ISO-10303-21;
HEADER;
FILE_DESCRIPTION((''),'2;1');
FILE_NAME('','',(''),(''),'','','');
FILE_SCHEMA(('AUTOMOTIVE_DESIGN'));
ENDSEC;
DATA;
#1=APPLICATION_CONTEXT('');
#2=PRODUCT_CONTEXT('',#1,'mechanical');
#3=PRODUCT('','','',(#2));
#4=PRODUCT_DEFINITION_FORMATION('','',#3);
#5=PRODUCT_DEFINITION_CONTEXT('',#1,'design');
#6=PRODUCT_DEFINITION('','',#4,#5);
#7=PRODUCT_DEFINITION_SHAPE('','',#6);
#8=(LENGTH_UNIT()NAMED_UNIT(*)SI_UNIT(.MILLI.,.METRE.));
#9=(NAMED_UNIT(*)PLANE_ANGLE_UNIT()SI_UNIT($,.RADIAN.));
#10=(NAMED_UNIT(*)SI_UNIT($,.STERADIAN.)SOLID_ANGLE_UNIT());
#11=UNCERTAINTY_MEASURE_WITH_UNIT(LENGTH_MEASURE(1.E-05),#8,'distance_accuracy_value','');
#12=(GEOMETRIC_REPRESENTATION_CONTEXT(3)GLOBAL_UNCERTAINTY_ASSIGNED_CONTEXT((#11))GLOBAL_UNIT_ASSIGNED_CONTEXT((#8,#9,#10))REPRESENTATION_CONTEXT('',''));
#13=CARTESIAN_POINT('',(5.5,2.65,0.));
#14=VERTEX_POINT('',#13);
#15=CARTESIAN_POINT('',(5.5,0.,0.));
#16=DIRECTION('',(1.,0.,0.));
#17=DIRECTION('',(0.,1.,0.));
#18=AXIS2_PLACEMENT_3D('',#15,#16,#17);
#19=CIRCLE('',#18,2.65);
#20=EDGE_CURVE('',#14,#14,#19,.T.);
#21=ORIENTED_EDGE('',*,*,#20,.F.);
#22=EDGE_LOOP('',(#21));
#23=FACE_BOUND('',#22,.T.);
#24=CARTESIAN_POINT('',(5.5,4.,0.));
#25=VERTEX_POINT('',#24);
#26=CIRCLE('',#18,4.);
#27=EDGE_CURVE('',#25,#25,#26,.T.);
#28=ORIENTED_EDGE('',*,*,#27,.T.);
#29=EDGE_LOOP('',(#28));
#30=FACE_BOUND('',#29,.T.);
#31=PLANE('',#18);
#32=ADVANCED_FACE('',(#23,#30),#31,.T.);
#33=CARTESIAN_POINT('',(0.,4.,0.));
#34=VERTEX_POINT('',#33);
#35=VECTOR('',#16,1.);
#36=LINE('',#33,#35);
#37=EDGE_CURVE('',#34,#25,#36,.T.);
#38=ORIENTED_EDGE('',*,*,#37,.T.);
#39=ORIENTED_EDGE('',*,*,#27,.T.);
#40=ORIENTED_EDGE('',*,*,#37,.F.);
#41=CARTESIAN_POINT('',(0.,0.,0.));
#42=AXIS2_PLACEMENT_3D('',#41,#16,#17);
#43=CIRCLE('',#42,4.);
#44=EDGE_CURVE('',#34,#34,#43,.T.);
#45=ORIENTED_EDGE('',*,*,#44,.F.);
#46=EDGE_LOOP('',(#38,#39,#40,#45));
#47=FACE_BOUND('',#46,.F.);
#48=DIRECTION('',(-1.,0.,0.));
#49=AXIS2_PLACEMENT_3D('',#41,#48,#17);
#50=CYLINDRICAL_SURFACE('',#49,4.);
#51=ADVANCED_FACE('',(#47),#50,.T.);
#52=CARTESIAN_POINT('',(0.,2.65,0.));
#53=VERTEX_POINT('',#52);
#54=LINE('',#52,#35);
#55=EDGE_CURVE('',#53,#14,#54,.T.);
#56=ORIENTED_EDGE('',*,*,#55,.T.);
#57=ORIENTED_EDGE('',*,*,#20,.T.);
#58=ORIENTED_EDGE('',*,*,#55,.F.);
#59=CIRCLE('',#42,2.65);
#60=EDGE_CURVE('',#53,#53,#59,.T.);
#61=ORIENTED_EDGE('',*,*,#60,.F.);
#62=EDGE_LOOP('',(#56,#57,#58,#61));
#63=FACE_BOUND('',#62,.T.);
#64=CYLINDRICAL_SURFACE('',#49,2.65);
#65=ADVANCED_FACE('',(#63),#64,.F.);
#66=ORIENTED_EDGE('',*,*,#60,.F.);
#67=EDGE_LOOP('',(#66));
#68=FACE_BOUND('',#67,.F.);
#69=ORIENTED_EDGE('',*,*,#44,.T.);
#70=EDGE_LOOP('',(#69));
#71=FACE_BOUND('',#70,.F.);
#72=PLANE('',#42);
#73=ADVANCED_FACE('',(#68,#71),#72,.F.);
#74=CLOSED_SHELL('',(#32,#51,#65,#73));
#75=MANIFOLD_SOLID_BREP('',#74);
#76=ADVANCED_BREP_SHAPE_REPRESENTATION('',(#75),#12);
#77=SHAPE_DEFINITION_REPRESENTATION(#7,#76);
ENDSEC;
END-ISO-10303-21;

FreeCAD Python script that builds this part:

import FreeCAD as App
import Part
import Sketcher

V = App.Vector

doc = App.newDocument("Part")
body = doc.addObject("PartDesign::Body", "Body")

# Sketch on YZ plane
sketch1 = body.newObject("Sketcher::SketchObject", "Sketch")
sketch1.AttachmentSupport = (doc.getObject("YZ_Plane"), [""])
sketch1.MapMode = "FlatFace"
sketch1.addGeometry([
    Part.Circle(V(0, 0, 0), V(0, 0, 1), 4),
    Part.Circle(V(0, 0, 0), V(0, 0, 1), 2.6),
], False)
sketch1.addConstraint([
    Sketcher.Constraint("Coincident", 0, 3, -1, 1),
    Sketcher.Constraint("Coincident", 1, 3, -1, 1),
    Sketcher.Constraint("Diameter", 0, 8.0),
    Sketcher.Constraint("Diameter", 1, 5.3),
])
pad1 = body.newObject("PartDesign::Pad", "Pad")
pad1.Profile = sketch1
pad1.Length = 5.5

doc.recompute()
